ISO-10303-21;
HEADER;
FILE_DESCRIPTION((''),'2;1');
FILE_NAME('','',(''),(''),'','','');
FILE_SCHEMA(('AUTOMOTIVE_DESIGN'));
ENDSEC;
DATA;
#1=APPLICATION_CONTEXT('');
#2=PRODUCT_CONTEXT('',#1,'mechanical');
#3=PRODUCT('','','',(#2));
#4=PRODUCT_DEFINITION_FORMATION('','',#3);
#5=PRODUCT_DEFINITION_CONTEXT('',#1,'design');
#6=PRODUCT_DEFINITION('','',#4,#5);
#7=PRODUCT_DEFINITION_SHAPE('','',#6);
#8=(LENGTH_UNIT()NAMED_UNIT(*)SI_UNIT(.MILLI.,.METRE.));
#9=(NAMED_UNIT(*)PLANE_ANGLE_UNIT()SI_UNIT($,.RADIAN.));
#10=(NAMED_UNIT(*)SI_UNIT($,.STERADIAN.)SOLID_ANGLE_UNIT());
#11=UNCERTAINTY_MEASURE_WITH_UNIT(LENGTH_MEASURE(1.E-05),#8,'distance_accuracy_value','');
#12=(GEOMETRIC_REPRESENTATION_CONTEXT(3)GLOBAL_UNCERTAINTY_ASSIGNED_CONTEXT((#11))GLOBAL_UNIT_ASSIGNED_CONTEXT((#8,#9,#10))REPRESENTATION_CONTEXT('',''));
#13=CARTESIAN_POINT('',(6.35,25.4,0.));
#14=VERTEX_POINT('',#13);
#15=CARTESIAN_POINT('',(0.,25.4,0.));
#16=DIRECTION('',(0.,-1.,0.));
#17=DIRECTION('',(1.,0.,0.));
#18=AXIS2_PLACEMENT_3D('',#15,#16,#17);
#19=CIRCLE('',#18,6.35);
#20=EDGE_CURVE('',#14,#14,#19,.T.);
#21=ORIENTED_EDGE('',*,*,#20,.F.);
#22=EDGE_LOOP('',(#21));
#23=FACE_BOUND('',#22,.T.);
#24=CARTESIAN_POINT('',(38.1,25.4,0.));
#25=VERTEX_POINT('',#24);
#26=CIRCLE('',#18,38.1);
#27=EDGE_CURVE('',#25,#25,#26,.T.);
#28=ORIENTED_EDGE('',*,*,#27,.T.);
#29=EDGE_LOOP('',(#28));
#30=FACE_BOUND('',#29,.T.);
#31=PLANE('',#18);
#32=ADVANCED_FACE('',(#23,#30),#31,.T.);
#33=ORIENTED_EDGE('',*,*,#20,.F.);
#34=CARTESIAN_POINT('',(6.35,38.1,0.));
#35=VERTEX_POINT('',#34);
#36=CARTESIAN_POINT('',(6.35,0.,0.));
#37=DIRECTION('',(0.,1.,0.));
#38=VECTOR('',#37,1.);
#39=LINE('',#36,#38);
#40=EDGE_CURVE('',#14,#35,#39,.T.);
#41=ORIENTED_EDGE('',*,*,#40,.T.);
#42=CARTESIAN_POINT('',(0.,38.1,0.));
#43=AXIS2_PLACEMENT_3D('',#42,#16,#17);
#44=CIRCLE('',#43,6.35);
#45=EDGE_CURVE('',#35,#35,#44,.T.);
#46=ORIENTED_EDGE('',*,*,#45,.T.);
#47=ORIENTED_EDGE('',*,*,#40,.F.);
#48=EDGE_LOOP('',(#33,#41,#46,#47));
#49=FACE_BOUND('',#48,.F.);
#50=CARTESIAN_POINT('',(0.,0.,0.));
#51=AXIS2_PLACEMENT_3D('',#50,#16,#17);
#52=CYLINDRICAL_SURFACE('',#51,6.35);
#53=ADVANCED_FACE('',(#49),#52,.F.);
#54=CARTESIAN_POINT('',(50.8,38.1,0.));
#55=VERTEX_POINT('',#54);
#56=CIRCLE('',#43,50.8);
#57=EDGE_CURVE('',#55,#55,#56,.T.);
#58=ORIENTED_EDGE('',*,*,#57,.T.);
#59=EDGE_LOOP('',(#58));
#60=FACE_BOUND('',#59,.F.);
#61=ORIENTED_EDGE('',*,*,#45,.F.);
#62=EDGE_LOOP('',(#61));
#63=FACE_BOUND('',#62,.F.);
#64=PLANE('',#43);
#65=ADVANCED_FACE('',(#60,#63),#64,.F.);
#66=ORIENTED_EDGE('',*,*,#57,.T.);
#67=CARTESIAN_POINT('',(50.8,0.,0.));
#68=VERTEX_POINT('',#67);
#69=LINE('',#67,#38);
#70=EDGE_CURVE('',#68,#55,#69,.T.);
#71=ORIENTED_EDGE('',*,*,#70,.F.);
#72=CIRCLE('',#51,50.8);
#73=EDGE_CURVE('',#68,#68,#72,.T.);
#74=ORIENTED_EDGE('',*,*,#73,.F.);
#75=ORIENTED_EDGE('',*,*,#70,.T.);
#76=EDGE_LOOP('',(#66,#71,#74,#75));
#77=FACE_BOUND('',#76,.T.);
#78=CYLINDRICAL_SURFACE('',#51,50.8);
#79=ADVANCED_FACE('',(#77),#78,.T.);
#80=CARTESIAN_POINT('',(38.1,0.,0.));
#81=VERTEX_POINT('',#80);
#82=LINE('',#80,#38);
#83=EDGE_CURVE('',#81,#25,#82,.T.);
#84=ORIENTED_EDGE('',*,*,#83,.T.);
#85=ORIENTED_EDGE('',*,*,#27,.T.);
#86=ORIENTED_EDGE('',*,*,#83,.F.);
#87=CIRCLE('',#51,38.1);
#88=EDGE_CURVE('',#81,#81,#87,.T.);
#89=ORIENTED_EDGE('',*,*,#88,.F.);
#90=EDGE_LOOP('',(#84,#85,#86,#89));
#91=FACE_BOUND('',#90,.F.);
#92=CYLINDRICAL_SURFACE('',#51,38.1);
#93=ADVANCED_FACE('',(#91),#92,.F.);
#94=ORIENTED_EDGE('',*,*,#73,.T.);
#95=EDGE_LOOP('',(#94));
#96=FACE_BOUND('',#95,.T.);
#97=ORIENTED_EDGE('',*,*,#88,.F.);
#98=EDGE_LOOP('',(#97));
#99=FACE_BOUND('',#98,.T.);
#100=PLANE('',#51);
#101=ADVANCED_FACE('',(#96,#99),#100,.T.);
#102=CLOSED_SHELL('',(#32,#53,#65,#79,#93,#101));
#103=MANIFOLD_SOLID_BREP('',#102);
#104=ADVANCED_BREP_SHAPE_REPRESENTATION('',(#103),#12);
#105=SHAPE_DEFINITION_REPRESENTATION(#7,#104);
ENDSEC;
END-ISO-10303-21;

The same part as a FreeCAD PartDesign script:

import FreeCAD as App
import Part
import Sketcher
from FreeCAD import Vector
Q = App.Units.Quantity


def faces_at(feature, points):
    """Names of the faces that lie closest to the given points."""
    faces = feature.Shape.Faces
    near = lambda p: min(range(len(faces)), key=lambda i: faces[i].distToShape(Part.Vertex(*p))[0])
    return sorted({f"Face{near(p) + 1}" for p in points})

doc = App.newDocument("Part")
body = doc.addObject("PartDesign::Body", "Body")

# Sketch on XZ plane
sketch1 = body.newObject("Sketcher::SketchObject", "Sketch")
sketch1.AttachmentSupport = (doc.getObject("XZ_Plane"), [""])
sketch1.MapMode = "FlatFace"
sketch1.addGeometry(Part.Circle(Vector(0, 0, 0), Vector(0, 0, 1), 51), False)
sketch1.addConstraint([
    Sketcher.Constraint("Coincident", 0, 3, -1, 1),
    Sketcher.Constraint("Diameter", 0, Q("4 in")),
])
pad1 = body.newObject("PartDesign::Pad", "Pad")
pad1.Profile = sketch1
pad1.Length = Q("1.5 in")
pad1.Reversed = True
doc.recompute()

thickness = body.newObject("PartDesign::Thickness", "Thickness")
thickness.Base = (pad1, faces_at(pad1, [(0, 0, 0)]))
thickness.Value = Q("0.5 in")
thickness.Reversed = True
thickness.Join = "Arc"

# Sketch on XZ plane
sketch2 = body.newObject("Sketcher::SketchObject", "Sketch001")
sketch2.AttachmentSupport = (doc.getObject("XZ_Plane"), [""])
sketch2.MapMode = "FlatFace"
sketch2.addGeometry(Part.Circle(Vector(0, 0, 0), Vector(0, 0, 1), 6), False)
sketch2.addConstraint([
    Sketcher.Constraint("Coincident", 0, 3, -1, 1),
    Sketcher.Constraint("Diameter", 0, Q("0.5 in")),
])
pocket1 = body.newObject("PartDesign::Pocket", "Pocket")
pocket1.Profile = sketch2
pocket1.Type = "ThroughAll"

doc.recompute()
